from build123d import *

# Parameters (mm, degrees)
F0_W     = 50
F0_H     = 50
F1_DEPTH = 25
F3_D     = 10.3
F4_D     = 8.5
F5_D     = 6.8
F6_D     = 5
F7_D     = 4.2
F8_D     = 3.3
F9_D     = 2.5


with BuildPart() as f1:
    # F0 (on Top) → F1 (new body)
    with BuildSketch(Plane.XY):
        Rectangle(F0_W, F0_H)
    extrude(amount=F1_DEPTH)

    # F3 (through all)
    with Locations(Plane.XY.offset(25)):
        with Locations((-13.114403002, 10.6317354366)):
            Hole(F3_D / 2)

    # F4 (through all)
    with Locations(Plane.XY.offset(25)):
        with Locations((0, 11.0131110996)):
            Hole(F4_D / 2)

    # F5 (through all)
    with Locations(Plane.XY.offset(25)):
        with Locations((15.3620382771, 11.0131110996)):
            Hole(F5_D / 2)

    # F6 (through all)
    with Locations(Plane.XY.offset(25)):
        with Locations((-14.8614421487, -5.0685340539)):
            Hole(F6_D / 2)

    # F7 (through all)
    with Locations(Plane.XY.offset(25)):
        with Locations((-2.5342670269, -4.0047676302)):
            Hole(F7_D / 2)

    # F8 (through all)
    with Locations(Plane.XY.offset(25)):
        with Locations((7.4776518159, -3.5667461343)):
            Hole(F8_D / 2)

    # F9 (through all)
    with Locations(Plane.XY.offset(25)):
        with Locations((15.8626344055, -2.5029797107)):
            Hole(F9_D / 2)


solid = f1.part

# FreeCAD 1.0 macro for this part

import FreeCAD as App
import Part
import Sketcher

V = App.Vector

doc = App.newDocument("Part")
body = doc.addObject("PartDesign::Body", "Body")

sketch1 = body.newObject("Sketcher::SketchObject", "Sketch")
sketch1.AttachmentSupport = (doc.getObject("XY_Plane"), [""])
sketch1.MapMode = "FlatFace"
sketch1.addGeometry([
    Part.LineSegment(V(-25, 25, 0), V(-25, -25, 0)),
    Part.LineSegment(V(-25, -25, 0), V(25, -25, 0)),
    Part.LineSegment(V(25, -25, 0), V(25, 25, 0)),
    Part.LineSegment(V(25, 25, 0), V(-25, 25, 0)),
], False)
sketch1.addConstraint([
    Sketcher.Constraint("Coincident", 0, 2, 1, 1),
    Sketcher.Constraint("Coincident", 1, 2, 2, 1),
    Sketcher.Constraint("Coincident", 2, 2, 3, 1),
    Sketcher.Constraint("Coincident", 3, 2, 0, 1),
    Sketcher.Constraint("Vertical", 0),
    Sketcher.Constraint("Horizontal", 1),
    Sketcher.Constraint("Vertical", 2),
    Sketcher.Constraint("Horizontal", 3),
    Sketcher.Constraint("Symmetric", 0, 2, 2, 2, -1, 1),
    Sketcher.Constraint("Equal", 3, 0),
    Sketcher.Constraint("DistanceX", 1, 1, 1, 2, 50.0),
])
pad1 = body.newObject("PartDesign::Pad", "Pad")
pad1.Profile = sketch1
pad1.Length = 25

sketch2 = body.newObject("Sketcher::SketchObject", "Sketch001")
sketch2.AttachmentSupport = (doc.getObject("XY_Plane"), [""])
sketch2.MapMode = "FlatFace"
sketch2.AttachmentOffset = App.Placement(V(0, 0, 25), App.Rotation())
sketch2.addGeometry(Part.Circle(V(-13.114403, 10.631735, 0), V(0, 0, 1), 5.15), False)
sketch2.addConstraint([
    Sketcher.Constraint("Diameter", 0, 10.3),
    Sketcher.Constraint("DistanceX", 0, 3, -1, 1, 13.114403),
    Sketcher.Constraint("DistanceY", -1, 1, 0, 3, 10.631735),
])
doc.recompute()
hole = body.newObject("PartDesign::Hole", "Hole")
hole.Profile = sketch2
hole.ThreadType = "None"
hole.Diameter = 10.3
hole.DepthType = "ThroughAll"

sketch3 = body.newObject("Sketcher::SketchObject", "Sketch002")
sketch3.AttachmentSupport = (doc.getObject("XY_Plane"), [""])
sketch3.MapMode = "FlatFace"
sketch3.AttachmentOffset = App.Placement(V(0, 0, 25), App.Rotation())
sketch3.addGeometry(Part.Circle(V(0, 11.013111, 0), V(0, 0, 1), 4.25), False)
sketch3.addConstraint([
    Sketcher.Constraint("PointOnObject", 0, 3, -2),
    Sketcher.Constraint("Diameter", 0, 8.5),
    Sketcher.Constraint("DistanceY", -1, 1, 0, 3, 11.013111),
])
doc.recompute()
hole2 = body.newObject("PartDesign::Hole", "Hole001")
hole2.Profile = sketch3
hole2.ThreadType = "None"
hole2.Diameter = 8.5
hole2.DepthType = "ThroughAll"

sketch4 = body.newObject("Sketcher::SketchObject", "Sketch003")
sketch4.AttachmentSupport = (doc.getObject("XY_Plane"), [""])
sketch4.MapMode = "FlatFace"
sketch4.AttachmentOffset = App.Placement(V(0, 0, 25), App.Rotation())
sketch4.addGeometry(Part.Circle(V(15.362038, 11.013111, 0), V(0, 0, 1), 3.4), False)
sketch4.addConstraint([
    Sketcher.Constraint("Diameter", 0, 6.8),
    Sketcher.Constraint("DistanceX", -1, 1, 0, 3, 15.362038),
    Sketcher.Constraint("DistanceY", -1, 1, 0, 3, 11.013111),
])
doc.recompute()
hole3 = body.newObject("PartDesign::Hole", "Hole002")
hole3.Profile = sketch4
hole3.ThreadType = "None"
hole3.Diameter = 6.8
hole3.DepthType = "ThroughAll"

sketch5 = body.newObject("Sketcher::SketchObject", "Sketch004")
sketch5.AttachmentSupport = (doc.getObject("XY_Plane"), [""])
sketch5.MapMode = "FlatFace"
sketch5.AttachmentOffset = App.Placement(V(0, 0, 25), App.Rotation())
sketch5.addGeometry(Part.Circle(V(-14.861442, -5.068534, 0), V(0, 0, 1), 2.5), False)
sketch5.addConstraint([
    Sketcher.Constraint("Diameter", 0, 5.0),
    Sketcher.Constraint("DistanceX", 0, 3, -1, 1, 14.861442),
    Sketcher.Constraint("DistanceY", 0, 3, -1, 1, 5.068534),
])
doc.recompute()
hole4 = body.newObject("PartDesign::Hole", "Hole003")
hole4.Profile = sketch5
hole4.ThreadType = "None"
hole4.Diameter = 5
hole4.DepthType = "ThroughAll"

sketch6 = body.newObject("Sketcher::SketchObject", "Sketch005")
sketch6.AttachmentSupport = (doc.getObject("XY_Plane"), [""])
sketch6.MapMode = "FlatFace"
sketch6.AttachmentOffset = App.Placement(V(0, 0, 25), App.Rotation())
sketch6.addGeometry(Part.Circle(V(-2.534267, -4.004768, 0), V(0, 0, 1), 2.1), False)
sketch6.addConstraint([
    Sketcher.Constraint("Diameter", 0, 4.2),
    Sketcher.Constraint("DistanceX", 0, 3, -1, 1, 2.534267),
    Sketcher.Constraint("DistanceY", 0, 3, -1, 1, 4.004768),
])
doc.recompute()
hole5 = body.newObject("PartDesign::Hole", "Hole004")
hole5.Profile = sketch6
hole5.ThreadType = "None"
hole5.Diameter = 4.2
hole5.DepthType = "ThroughAll"

sketch7 = body.newObject("Sketcher::SketchObject", "Sketch006")
sketch7.AttachmentSupport = (doc.getObject("XY_Plane"), [""])
sketch7.MapMode = "FlatFace"
sketch7.AttachmentOffset = App.Placement(V(0, 0, 25), App.Rotation())
sketch7.addGeometry(Part.Circle(V(7.477652, -3.566746, 0), V(0, 0, 1), 1.65), False)
sketch7.addConstraint([
    Sketcher.Constraint("Diameter", 0, 3.3),
    Sketcher.Constraint("DistanceX", -1, 1, 0, 3, 7.477652),
    Sketcher.Constraint("DistanceY", 0, 3, -1, 1, 3.566746),
])
doc.recompute()
hole6 = body.newObject("PartDesign::Hole", "Hole005")
hole6.Profile = sketch7
hole6.ThreadType = "None"
hole6.Diameter = 3.3
hole6.DepthType = "ThroughAll"

sketch8 = body.newObject("Sketcher::SketchObject", "Sketch007")
sketch8.AttachmentSupport = (doc.getObject("XY_Plane"), [""])
sketch8.MapMode = "FlatFace"
sketch8.AttachmentOffset = App.Placement(V(0, 0, 25), App.Rotation())
sketch8.addGeometry(Part.Circle(V(15.862634, -2.50298, 0), V(0, 0, 1), 1.25), False)
sketch8.addConstraint([
    Sketcher.Constraint("Diameter", 0, 2.5),
    Sketcher.Constraint("DistanceY", 0, 3, -1, 1, 2.50298),
    Sketcher.Constraint("DistanceX", -1, 1, 0, 3, 15.862634),
])
doc.recompute()
hole7 = body.newObject("PartDesign::Hole", "Hole006")
hole7.Profile = sketch8
hole7.ThreadType = "None"
hole7.Diameter = 2.5
hole7.DepthType = "ThroughAll"

doc.recompute()
